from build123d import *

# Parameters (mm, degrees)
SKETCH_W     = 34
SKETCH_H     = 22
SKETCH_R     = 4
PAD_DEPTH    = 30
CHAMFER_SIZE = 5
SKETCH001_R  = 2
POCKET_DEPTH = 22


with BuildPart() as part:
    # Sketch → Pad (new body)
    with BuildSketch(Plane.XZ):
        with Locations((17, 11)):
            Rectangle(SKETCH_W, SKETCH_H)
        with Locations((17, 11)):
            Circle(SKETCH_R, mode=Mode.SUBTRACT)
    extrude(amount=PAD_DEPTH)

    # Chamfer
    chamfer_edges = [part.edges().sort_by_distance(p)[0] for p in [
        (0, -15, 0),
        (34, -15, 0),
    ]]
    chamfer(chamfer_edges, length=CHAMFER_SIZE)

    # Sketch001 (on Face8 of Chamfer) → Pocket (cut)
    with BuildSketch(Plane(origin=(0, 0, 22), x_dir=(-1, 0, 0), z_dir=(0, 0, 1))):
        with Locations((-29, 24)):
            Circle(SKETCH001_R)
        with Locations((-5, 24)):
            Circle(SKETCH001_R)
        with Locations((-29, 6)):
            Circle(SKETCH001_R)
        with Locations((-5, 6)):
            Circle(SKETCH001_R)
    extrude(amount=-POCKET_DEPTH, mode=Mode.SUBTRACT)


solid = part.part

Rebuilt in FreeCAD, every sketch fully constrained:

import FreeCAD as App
import Part
import Sketcher

V = App.Vector


def edges_at(feature, points):
    """Names of the edges that pass closest to the given points."""
    edges = feature.Shape.Edges
    near = lambda p: min(range(len(edges)), key=lambda i: edges[i].distToShape(Part.Vertex(*p))[0])
    return sorted({f"Edge{near(p) + 1}" for p in points})


def add_polygon(sketch, points):
    """Adds a closed chain of lines whose ends are joined by coincident constraints."""
    first, n = sketch.GeometryCount, len(points)
    for a, b in zip(points, points[1:] + points[:1]):
        sketch.addGeometry(Part.LineSegment(App.Vector(*a, 0), App.Vector(*b, 0)), False)
    for i in range(n):
        sketch.addConstraint(Sketcher.Constraint("Coincident", first + i, 2, first + (i + 1) % n, 1))

doc = App.newDocument("Part")
body = doc.addObject("PartDesign::Body", "Body")

sketch1 = doc.addObject("Sketcher::SketchObject", "Sketch")
body.addObject(sketch1)
sketch1.AttachmentSupport = (doc.XZ_Plane, [""])
sketch1.MapMode = "FlatFace"
add_polygon(sketch1, [(0, 22), (0, 0), (34, 0), (34, 22)])
sketch1.addGeometry(Part.Circle(V(17, 11, 0), V(0, 0, 1), 4), False)
sketch1.addConstraint(Sketcher.Constraint("Vertical", 0))
sketch1.addConstraint(Sketcher.Constraint("Horizontal", 1))
sketch1.addConstraint(Sketcher.Constraint("Vertical", 2))
sketch1.addConstraint(Sketcher.Constraint("Horizontal", 3))
sketch1.addConstraint(Sketcher.Constraint("Coincident", 0, 2, -1, 1))
sketch1.addConstraint(Sketcher.Constraint("Diameter", 4, 8.0))
sketch1.addConstraint(Sketcher.Constraint("DistanceX", 1, 1, 1, 2, 34.0))
sketch1.addConstraint(Sketcher.Constraint("DistanceY", 0, 2, 0, 1, 22.0))
sketch1.addConstraint(Sketcher.Constraint("DistanceX", -1, 1, 4, 3, 17.0))
sketch1.addConstraint(Sketcher.Constraint("DistanceY", -1, 1, 4, 3, 11.0))
pad1 = doc.addObject("PartDesign::Pad", "Pad")
body.addObject(pad1)
pad1.Profile = sketch1
pad1.Length = 30
doc.recompute()

chamfer = doc.addObject("PartDesign::Chamfer", "Chamfer")
body.addObject(chamfer)
chamfer.Base = (pad1, edges_at(pad1, [(0, -15, 0), (34, -15, 0)]))
chamfer.Size = 5

sketch2 = doc.addObject("Sketcher::SketchObject", "Sketch001")
body.addObject(sketch2)
sketch2.AttachmentSupport = (doc.XY_Plane, [""])
sketch2.MapMode = "FlatFace"
sketch2.AttachmentOffset = App.Placement(V(0, 0, 22), App.Rotation())
sketch2.addGeometry(Part.Circle(V(29, -24, 0), V(0, 0, 1), 2), False)
sketch2.addGeometry(Part.Circle(V(5, -24, 0), V(0, 0, 1), 2), False)
sketch2.addGeometry(Part.Circle(V(29, -6, 0), V(0, 0, 1), 2), False)
sketch2.addGeometry(Part.Circle(V(5, -6, 0), V(0, 0, 1), 2), False)
sketch2.addConstraint(Sketcher.Constraint("Equal", 0, 1))
sketch2.addConstraint(Sketcher.Constraint("Equal", 1, 2))
sketch2.addConstraint(Sketcher.Constraint("Equal", 2, 3))
sketch2.addConstraint(Sketcher.Constraint("Horizontal", 0, 3, 1, 3))
sketch2.addConstraint(Sketcher.Constraint("Horizontal", 2, 3, 3, 3))
sketch2.addConstraint(Sketcher.Constraint("Vertical", 0, 3, 2, 3))
sketch2.addConstraint(Sketcher.Constraint("Vertical", 1, 3, 3, 3))
sketch2.addConstraint(Sketcher.Constraint("Diameter", 0, 4.0))
sketch2.addConstraint(Sketcher.Constraint("DistanceX", -1, 1, 0, 3, 29.0))
sketch2.addConstraint(Sketcher.Constraint("DistanceY", 0, 3, -1, 1, 24.0))
sketch2.addConstraint(Sketcher.Constraint("DistanceX", -1, 1, 1, 3, 5.0))
sketch2.addConstraint(Sketcher.Constraint("DistanceY", 2, 3, -1, 1, 6.0))
pocket1 = doc.addObject("PartDesign::Pocket", "Pocket")
body.addObject(pocket1)
pocket1.Profile = sketch2
pocket1.Length = 22

doc.recompute()
